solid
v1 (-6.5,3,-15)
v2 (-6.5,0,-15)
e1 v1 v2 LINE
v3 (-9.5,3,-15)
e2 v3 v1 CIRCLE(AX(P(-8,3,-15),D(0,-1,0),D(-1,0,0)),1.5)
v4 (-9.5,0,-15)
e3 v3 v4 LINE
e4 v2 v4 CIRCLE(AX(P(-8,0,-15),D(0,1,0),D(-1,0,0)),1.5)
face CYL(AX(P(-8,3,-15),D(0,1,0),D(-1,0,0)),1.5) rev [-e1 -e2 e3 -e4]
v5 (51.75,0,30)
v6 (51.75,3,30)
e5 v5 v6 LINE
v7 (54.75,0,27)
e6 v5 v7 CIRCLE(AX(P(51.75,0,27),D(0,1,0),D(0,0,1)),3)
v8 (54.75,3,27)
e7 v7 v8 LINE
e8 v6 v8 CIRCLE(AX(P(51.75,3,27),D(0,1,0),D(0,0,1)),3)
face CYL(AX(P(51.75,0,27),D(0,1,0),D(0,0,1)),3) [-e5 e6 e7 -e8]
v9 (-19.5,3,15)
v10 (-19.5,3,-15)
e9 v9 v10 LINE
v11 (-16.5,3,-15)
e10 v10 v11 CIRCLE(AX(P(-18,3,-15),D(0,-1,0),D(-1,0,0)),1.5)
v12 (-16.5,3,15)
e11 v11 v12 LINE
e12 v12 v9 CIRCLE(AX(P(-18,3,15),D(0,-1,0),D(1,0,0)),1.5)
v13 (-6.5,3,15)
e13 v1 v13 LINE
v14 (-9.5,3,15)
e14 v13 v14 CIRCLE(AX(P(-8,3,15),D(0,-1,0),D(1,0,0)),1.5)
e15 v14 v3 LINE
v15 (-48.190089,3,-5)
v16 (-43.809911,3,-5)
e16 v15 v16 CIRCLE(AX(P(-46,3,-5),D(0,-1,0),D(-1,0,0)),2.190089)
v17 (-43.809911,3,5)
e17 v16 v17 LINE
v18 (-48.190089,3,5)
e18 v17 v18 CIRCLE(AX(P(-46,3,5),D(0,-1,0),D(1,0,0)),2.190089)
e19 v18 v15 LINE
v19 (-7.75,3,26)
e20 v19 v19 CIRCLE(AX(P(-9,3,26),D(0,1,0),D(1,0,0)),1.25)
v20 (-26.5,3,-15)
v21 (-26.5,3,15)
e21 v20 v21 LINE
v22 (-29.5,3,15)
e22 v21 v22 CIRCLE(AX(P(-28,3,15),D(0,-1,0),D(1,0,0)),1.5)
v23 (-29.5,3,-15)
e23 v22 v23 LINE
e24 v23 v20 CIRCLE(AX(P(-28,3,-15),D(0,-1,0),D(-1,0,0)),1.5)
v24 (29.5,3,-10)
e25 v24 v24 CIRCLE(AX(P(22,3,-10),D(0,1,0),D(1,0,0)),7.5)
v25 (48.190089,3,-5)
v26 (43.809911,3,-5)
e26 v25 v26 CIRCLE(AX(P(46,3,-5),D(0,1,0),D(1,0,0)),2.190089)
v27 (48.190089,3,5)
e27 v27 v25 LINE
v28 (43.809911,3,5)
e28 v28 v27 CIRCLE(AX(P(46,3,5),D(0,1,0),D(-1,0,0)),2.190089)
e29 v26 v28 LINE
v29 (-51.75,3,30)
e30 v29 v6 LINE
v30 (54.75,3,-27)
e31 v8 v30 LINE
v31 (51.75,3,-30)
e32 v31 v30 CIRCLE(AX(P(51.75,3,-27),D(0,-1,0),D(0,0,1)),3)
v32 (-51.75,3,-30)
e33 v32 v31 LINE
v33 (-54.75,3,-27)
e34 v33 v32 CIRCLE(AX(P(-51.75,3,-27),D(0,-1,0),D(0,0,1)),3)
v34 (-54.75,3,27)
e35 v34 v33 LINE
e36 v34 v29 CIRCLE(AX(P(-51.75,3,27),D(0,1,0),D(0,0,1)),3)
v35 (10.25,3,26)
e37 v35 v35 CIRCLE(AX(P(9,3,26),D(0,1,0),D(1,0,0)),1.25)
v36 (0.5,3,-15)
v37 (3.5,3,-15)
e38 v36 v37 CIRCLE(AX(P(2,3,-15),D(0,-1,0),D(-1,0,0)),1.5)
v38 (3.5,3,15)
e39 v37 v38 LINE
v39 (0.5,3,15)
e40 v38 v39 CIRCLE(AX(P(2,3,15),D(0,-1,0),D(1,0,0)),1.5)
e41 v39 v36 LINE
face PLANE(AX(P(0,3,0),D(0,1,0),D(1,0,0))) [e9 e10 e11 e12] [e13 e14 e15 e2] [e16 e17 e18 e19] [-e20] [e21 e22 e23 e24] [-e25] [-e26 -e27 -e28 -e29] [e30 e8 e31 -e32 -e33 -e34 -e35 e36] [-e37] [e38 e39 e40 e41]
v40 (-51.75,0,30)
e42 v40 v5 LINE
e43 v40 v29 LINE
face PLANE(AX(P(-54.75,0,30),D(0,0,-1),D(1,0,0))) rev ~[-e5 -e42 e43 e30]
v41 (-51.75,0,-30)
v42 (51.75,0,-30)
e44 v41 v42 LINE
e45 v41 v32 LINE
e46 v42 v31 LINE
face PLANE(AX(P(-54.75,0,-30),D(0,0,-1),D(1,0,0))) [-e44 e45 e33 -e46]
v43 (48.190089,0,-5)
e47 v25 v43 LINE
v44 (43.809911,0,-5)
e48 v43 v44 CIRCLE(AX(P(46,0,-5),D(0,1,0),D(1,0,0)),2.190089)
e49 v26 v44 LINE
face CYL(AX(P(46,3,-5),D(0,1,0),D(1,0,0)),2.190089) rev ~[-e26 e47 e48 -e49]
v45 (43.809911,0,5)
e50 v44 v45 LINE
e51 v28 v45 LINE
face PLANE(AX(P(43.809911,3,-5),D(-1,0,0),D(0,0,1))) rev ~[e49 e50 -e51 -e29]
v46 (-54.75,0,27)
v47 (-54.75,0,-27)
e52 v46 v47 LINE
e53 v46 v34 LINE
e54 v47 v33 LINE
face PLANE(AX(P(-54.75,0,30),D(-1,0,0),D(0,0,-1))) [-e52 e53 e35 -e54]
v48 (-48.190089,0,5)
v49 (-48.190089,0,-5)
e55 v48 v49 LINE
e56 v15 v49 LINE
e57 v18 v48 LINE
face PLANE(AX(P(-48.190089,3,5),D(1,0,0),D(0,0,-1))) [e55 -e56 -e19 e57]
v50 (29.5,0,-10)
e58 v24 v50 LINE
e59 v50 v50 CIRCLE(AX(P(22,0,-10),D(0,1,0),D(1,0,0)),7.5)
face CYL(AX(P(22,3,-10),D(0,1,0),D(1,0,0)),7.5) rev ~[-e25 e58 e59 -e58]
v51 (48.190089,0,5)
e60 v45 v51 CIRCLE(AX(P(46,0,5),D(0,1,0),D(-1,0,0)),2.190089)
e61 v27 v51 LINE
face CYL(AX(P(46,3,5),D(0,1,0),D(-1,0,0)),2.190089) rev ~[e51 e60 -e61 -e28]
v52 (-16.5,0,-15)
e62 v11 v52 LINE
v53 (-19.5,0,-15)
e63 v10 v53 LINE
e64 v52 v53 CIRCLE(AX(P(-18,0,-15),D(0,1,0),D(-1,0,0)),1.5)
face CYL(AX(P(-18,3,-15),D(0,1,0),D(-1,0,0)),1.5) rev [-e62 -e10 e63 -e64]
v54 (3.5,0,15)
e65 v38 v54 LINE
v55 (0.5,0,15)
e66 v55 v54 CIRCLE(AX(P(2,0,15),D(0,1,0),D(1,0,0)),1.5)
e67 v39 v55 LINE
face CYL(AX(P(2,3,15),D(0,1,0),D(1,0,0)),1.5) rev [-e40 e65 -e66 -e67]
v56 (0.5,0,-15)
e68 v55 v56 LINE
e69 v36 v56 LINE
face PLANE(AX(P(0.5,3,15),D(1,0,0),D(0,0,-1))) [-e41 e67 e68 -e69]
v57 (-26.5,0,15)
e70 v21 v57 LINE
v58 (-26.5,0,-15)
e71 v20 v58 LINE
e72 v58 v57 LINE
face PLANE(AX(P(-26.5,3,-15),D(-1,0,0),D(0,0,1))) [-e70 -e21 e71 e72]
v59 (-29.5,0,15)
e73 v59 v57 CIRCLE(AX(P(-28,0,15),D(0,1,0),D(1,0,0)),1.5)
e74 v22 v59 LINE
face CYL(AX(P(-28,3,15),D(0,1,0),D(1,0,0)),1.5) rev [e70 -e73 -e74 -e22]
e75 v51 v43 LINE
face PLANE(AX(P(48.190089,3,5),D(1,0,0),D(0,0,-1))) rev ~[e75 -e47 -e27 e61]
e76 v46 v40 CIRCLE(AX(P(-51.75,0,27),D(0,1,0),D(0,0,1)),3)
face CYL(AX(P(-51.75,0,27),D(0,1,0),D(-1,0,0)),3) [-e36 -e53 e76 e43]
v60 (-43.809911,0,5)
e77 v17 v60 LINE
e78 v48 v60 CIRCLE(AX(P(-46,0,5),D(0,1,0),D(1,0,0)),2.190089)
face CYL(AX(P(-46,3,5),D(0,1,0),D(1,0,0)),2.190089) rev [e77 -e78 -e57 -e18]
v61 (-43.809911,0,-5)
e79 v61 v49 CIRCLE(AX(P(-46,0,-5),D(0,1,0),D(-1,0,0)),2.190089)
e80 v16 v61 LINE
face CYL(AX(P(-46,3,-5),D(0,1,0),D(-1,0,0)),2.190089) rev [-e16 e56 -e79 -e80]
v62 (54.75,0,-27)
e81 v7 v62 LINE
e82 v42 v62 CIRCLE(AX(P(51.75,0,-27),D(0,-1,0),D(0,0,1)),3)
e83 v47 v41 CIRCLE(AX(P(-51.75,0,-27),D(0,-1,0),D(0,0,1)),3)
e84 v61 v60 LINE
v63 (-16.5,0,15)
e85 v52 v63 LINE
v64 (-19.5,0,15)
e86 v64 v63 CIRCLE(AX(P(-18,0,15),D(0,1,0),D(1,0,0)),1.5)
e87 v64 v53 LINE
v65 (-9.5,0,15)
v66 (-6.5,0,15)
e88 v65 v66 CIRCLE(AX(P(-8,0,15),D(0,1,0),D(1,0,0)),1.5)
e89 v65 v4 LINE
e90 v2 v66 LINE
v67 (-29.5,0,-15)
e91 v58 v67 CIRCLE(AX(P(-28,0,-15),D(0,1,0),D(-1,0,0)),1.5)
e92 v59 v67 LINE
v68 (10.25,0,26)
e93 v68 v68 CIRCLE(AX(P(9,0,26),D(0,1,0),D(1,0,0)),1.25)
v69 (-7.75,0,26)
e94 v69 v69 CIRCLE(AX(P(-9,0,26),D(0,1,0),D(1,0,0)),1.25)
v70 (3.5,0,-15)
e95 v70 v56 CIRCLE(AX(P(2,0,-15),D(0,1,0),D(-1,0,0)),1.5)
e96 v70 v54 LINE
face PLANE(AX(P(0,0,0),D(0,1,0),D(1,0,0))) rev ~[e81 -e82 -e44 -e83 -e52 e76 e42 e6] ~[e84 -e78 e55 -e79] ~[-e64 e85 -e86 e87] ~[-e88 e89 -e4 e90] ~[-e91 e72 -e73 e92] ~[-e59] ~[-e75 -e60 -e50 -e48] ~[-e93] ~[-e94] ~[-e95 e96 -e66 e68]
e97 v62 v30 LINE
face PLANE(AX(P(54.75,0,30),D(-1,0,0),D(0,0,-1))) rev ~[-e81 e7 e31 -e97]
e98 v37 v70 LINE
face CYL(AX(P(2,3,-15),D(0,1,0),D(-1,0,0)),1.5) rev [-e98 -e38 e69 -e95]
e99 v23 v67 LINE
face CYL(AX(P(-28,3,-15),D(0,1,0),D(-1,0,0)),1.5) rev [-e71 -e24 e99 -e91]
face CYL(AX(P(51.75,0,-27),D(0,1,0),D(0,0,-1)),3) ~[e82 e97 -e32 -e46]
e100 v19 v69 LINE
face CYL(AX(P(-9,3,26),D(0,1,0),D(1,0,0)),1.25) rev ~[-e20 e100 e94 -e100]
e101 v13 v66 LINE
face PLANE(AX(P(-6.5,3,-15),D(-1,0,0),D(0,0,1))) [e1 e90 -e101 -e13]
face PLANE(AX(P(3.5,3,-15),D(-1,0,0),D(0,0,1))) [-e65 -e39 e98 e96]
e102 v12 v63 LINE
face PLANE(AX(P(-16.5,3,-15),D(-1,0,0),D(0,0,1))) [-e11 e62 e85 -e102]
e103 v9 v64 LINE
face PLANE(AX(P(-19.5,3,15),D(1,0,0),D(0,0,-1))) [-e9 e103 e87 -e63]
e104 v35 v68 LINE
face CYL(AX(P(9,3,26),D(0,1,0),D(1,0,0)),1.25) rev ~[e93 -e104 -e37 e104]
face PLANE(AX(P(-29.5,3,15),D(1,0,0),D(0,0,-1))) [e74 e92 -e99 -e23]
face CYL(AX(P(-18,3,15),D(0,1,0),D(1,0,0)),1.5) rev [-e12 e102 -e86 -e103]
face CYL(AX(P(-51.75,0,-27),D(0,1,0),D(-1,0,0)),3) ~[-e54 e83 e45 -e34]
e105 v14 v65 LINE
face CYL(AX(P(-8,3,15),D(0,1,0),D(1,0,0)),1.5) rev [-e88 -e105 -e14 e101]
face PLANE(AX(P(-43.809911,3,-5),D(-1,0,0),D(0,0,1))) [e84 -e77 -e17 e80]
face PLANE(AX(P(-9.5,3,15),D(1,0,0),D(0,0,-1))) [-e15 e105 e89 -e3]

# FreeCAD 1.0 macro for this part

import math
import FreeCAD as App
import Part
import Sketcher
from FreeCAD import Vector
Q = App.Units.Quantity


def edges_at(feature, points):
    """Names of the edges that pass closest to the given points."""
    edges = feature.Shape.Edges
    near = lambda p: min(range(len(edges)), key=lambda i: edges[i].distToShape(Part.Vertex(*p))[0])
    return sorted({f"Edge{near(p) + 1}" for p in points})

doc = App.newDocument("Part")
body = doc.addObject("PartDesign::Body", "Body")

sketch1 = doc.addObject("Sketcher::SketchObject", "Sketch")
body.addObject(sketch1)
sketch1.AttachmentSupport = (doc.XZ_Plane, [""])
sketch1.MapMode = "FlatFace"
sketch1.addGeometry(Part.LineSegment(Vector(-55, -30, 0), Vector(-55, 30, 0)), False)
sketch1.addGeometry(Part.LineSegment(Vector(-55, 30, 0), Vector(55, 30, 0)), False)
sketch1.addGeometry(Part.LineSegment(Vector(55, 30, 0), Vector(55, -30, 0)), False)
sketch1.addGeometry(Part.LineSegment(Vector(55, -30, 0), Vector(-55, -30, 0)), False)
sketch1.addConstraint(Sketcher.Constraint("Coincident", 0, 2, 1, 1))
sketch1.addConstraint(Sketcher.Constraint("Coincident", 1, 2, 2, 1))
sketch1.addConstraint(Sketcher.Constraint("Coincident", 2, 2, 3, 1))
sketch1.addConstraint(Sketcher.Constraint("Coincident", 3, 2, 0, 1))
sketch1.addConstraint(Sketcher.Constraint("Vertical", 0))
sketch1.addConstraint(Sketcher.Constraint("Horizontal", 1))
sketch1.addConstraint(Sketcher.Constraint("Vertical", 2))
sketch1.addConstraint(Sketcher.Constraint("Horizontal", 3))
sketch1.addConstraint(Sketcher.Constraint("Symmetric", 0, 2, 2, 2, -1, 1))
sketch1.addConstraint(Sketcher.Constraint("DistanceY", 0, 1, 0, 2, Q("60 mm")))
sketch1.addConstraint(Sketcher.Constraint("DistanceX", 1, 1, 1, 2, Q("109.5 mm")))
pad1 = doc.addObject("PartDesign::Pad", "Pad")
body.addObject(pad1)
pad1.Profile = sketch1
pad1.Length = 3
pad1.Reversed = True

sketch2 = doc.addObject("Sketcher::SketchObject", "Sketch001")
body.addObject(sketch2)
sketch2.AttachmentSupport = (doc.XZ_Plane, [""])
sketch2.MapMode = "FlatFace"
sketch2.AttachmentOffset = App.Placement(Vector(0, 0, -3), App.Rotation())
sketch2.addGeometry(Part.Circle(Vector(9, 26, 0), Vector(0, 0, 1), 1.2), False)
sketch2.addGeometry(Part.Circle(Vector(-9, 26, 0), Vector(0, 0, 1), 1.2), False)
sketch2.addConstraint(Sketcher.Constraint("Equal", 0, 1))
sketch2.addConstraint(Sketcher.Constraint("Symmetric", 0, 3, 1, 3, -2))
sketch2.addConstraint(Sketcher.Constraint("Diameter", 0, Q("2.5 mm")))
sketch2.addConstraint(Sketcher.Constraint("DistanceX", -1, 1, 0, 3, Q("9 mm")))
sketch2.addConstraint(Sketcher.Constraint("DistanceY", -1, 1, 0, 3, Q("26 mm")))
pocket1 = doc.addObject("PartDesign::Pocket", "Pocket")
body.addObject(pocket1)
pocket1.Profile = sketch2
pocket1.Length = 10
pocket1.Reversed = True
doc.recompute()

fillet = doc.addObject("PartDesign::Fillet", "Fillet")
body.addObject(fillet)
fillet.Base = (pocket1, edges_at(pocket1, [
    (54.75, 1.5, 30),
    (-54.75, 1.5, 30),
    (-54.75, 1.5, -30),
    (54.75, 1.5, -30),
]))
fillet.Radius = 3

sketch3 = doc.addObject("Sketcher::SketchObject", "Sketch002")
body.addObject(sketch3)
sketch3.AttachmentSupport = (doc.XZ_Plane, [""])
sketch3.MapMode = "FlatFace"
sketch3.AttachmentOffset = App.Placement(Vector(0, 0, -3), App.Rotation())
sketch3.addGeometry(Part.LineSegment(Vector(-43.8, 5, 0), Vector(-43.8, -5, 0)), False)
sketch3.addGeometry(Part.ArcOfCircle(Part.Circle(Vector(-46, -5, 0), Vector(0, 0, 1), 2.2), math.radians(180), math.radians(360)), False)
sketch3.addGeometry(Part.LineSegment(Vector(-48.2, -5, 0), Vector(-48.2, 5, 0)), False)
sketch3.addGeometry(Part.ArcOfCircle(Part.Circle(Vector(-46, 5, 0), Vector(0, 0, 1), 2.2), math.radians(0), math.radians(180)), False)
sketch3.addGeometry(Part.LineSegment(Vector(43.8, -5, 0), Vector(43.8, 5, 0)), False)
sketch3.addGeometry(Part.ArcOfCircle(Part.Circle(Vector(46, 5, 0), Vector(0, 0, 1), 2.2), math.radians(0), math.radians(180)), False)
sketch3.addGeometry(Part.LineSegment(Vector(48.2, 5, 0), Vector(48.2, -5, 0)), False)
sketch3.addGeometry(Part.ArcOfCircle(Part.Circle(Vector(46, -5, 0), Vector(0, 0, 1), 2.2), math.radians(180), math.radians(360)), False)
sketch3.addConstraint(Sketcher.Constraint("Tangent", 0, 2, 1, 2))
sketch3.addConstraint(Sketcher.Constraint("Tangent", 1, 1, 2, 1))
sketch3.addConstraint(Sketcher.Constraint("Tangent", 2, 2, 3, 2))
sketch3.addConstraint(Sketcher.Constraint("Tangent", 3, 1, 0, 1))
sketch3.addConstraint(Sketcher.Constraint("Tangent", 4, 2, 5, 2))
sketch3.addConstraint(Sketcher.Constraint("Tangent", 5, 1, 6, 1))
sketch3.addConstraint(Sketcher.Constraint("Tangent", 6, 2, 7, 2))
sketch3.addConstraint(Sketcher.Constraint("Tangent", 7, 1, 4, 1))
sketch3.addConstraint(Sketcher.Constraint("Vertical", 0))
sketch3.addConstraint(Sketcher.Constraint("Vertical", 2))
sketch3.addConstraint(Sketcher.Constraint("Vertical", 4))
sketch3.addConstraint(Sketcher.Constraint("Vertical", 6))
sketch3.addConstraint(Sketcher.Constraint("Equal", 3, 5))
sketch3.addConstraint(Sketcher.Constraint("Symmetric", 1, 3, 5, 3, -1, 1))
sketch3.addConstraint(Sketcher.Constraint("Horizontal", 3, 3, 5, 3))
sketch3.addConstraint(Sketcher.Constraint("Horizontal", 1, 3, 7, 3))
sketch3.addConstraint(Sketcher.Constraint("DistanceY", 0, 2, 0, 1, Q("10 mm")))
sketch3.addConstraint(Sketcher.Constraint("DistanceX", 1, 3, -1, 1, Q("46 mm")))
sketch3.addConstraint(Sketcher.Constraint("Radius", 1, Q("2.190089 mm")))
pocket2 = doc.addObject("PartDesign::Pocket", "Pocket001")
body.addObject(pocket2)
pocket2.Profile = sketch3
pocket2.Length = 10
pocket2.Reversed = True

sketch4 = doc.addObject("Sketcher::SketchObject", "Sketch003")
body.addObject(sketch4)
sketch4.AttachmentSupport = (doc.XZ_Plane, [""])
sketch4.MapMode = "FlatFace"
sketch4.AttachmentOffset = App.Placement(Vector(0, 0, -3), App.Rotation())
sketch4.addGeometry(Part.Circle(Vector(22, -10, 0), Vector(0, 0, 1), 7.5), False)
sketch4.addGeometry(Part.LineSegment(Vector(-26.5, 15, 0), Vector(-26.5, -15, 0)), False)
sketch4.addGeometry(Part.ArcOfCircle(Part.Circle(Vector(-28, -15, 0), Vector(0, 0, 1), 1.5), math.radians(180), math.radians(360)), False)
sketch4.addGeometry(Part.LineSegment(Vector(-29.5, -15, 0), Vector(-29.5, 15, 0)), False)
sketch4.addGeometry(Part.ArcOfCircle(Part.Circle(Vector(-28, 15, 0), Vector(0, 0, 1), 1.5), math.radians(0), math.radians(180)), False)
sketch4.addGeometry(Part.LineSegment(Vector(-16.5, 15, 0), Vector(-16.5, -15, 0)), False)
sketch4.addGeometry(Part.ArcOfCircle(Part.Circle(Vector(-18, -15, 0), Vector(0, 0, 1), 1.5), math.radians(180), math.radians(360)), False)
sketch4.addGeometry(Part.LineSegment(Vector(-19.5, -15, 0), Vector(-19.5, 15, 0)), False)
sketch4.addGeometry(Part.ArcOfCircle(Part.Circle(Vector(-18, 15, 0), Vector(0, 0, 1), 1.5), math.radians(0), math.radians(180)), False)
sketch4.addGeometry(Part.LineSegment(Vector(-6.5, 15, 0), Vector(-6.5, -15, 0)), False)
sketch4.addGeometry(Part.ArcOfCircle(Part.Circle(Vector(-8, -15, 0), Vector(0, 0, 1), 1.5), math.radians(180), math.radians(360)), False)
sketch4.addGeometry(Part.LineSegment(Vector(-9.5, -15, 0), Vector(-9.5, 15, 0)), False)
sketch4.addGeometry(Part.ArcOfCircle(Part.Circle(Vector(-8, 15, 0), Vector(0, 0, 1), 1.5), math.radians(0), math.radians(180)), False)
sketch4.addGeometry(Part.LineSegment(Vector(3.5, 15, 0), Vector(3.5, -15, 0)), False)
sketch4.addGeometry(Part.ArcOfCircle(Part.Circle(Vector(2, -15, 0), Vector(0, 0, 1), 1.5), math.radians(180), math.radians(360)), False)
sketch4.addGeometry(Part.LineSegment(Vector(0.5, -15, 0), Vector(0.5, 15, 0)), False)
sketch4.addGeometry(Part.ArcOfCircle(Part.Circle(Vector(2, 15, 0), Vector(0, 0, 1), 1.5), math.radians(0), math.radians(180)), False)
sketch4.addConstraint(Sketcher.Constraint("Tangent", 1, 2, 2, 2))
sketch4.addConstraint(Sketcher.Constraint("Tangent", 2, 1, 3, 1))
sketch4.addConstraint(Sketcher.Constraint("Tangent", 3, 2, 4, 2))
sketch4.addConstraint(Sketcher.Constraint("Tangent", 4, 1, 1, 1))
sketch4.addConstraint(Sketcher.Constraint("Tangent", 5, 2, 6, 2))
sketch4.addConstraint(Sketcher.Constraint("Tangent", 6, 1, 7, 1))
sketch4.addConstraint(Sketcher.Constraint("Tangent", 7, 2, 8, 2))
sketch4.addConstraint(Sketcher.Constraint("Tangent", 8, 1, 5, 1))
sketch4.addConstraint(Sketcher.Constraint("Tangent", 9, 2, 10, 2))
sketch4.addConstraint(Sketcher.Constraint("Tangent", 10, 1, 11, 1))
sketch4.addConstraint(Sketcher.Constraint("Tangent", 11, 2, 12, 2))
sketch4.addConstraint(Sketcher.Constraint("Tangent", 12, 1, 9, 1))
sketch4.addConstraint(Sketcher.Constraint("Tangent", 13, 2, 14, 2))
sketch4.addConstraint(Sketcher.Constraint("Tangent", 14, 1, 15, 1))
sketch4.addConstraint(Sketcher.Constraint("Tangent", 15, 2, 16, 2))
sketch4.addConstraint(Sketcher.Constraint("Tangent", 16, 1, 13, 1))
sketch4.addConstraint(Sketcher.Constraint("Vertical", 1))
sketch4.addConstraint(Sketcher.Constraint("Vertical", 3))
sketch4.addConstraint(Sketcher.Constraint("Vertical", 5))
sketch4.addConstraint(Sketcher.Constraint("Vertical", 7))
sketch4.addConstraint(Sketcher.Constraint("Vertical", 9))
sketch4.addConstraint(Sketcher.Constraint("Vertical", 11))
sketch4.addConstraint(Sketcher.Constraint("Vertical", 13))
sketch4.addConstraint(Sketcher.Constraint("Vertical", 15))
sketch4.addConstraint(Sketcher.Constraint("Equal", 4, 6))
sketch4.addConstraint(Sketcher.Constraint("Equal", 8, 10))
sketch4.addConstraint(Sketcher.Constraint("Equal", 12, 14))
sketch4.addConstraint(Sketcher.Constraint("Horizontal", 2, 3, 6, 3))
sketch4.addConstraint(Sketcher.Constraint("Horizontal", 4, 3, 8, 3))
sketch4.addConstraint(Sketcher.Constraint("Horizontal", 6, 3, 10, 3))
sketch4.addConstraint(Sketcher.Constraint("Horizontal", 8, 3, 12, 3))
sketch4.addConstraint(Sketcher.Constraint("Horizontal", 10, 3, 14, 3))
sketch4.addConstraint(Sketcher.Constraint("Horizontal", 12, 3, 16, 3))
sketch4.addConstraint(Sketcher.Constraint("Diameter", 0, Q("15 mm")))
sketch4.addConstraint(Sketcher.Constraint("Radius", 2, Q("1.5 mm")))
sketch4.addConstraint(Sketcher.Constraint("DistanceY", 1, 2, 1, 1, Q("30 mm")))
sketch4.addConstraint(Sketcher.Constraint("DistanceX", -1, 1, 0, 3, Q("22 mm")))
sketch4.addConstraint(Sketcher.Constraint("DistanceY", 0, 3, -1, 1, Q("10 mm")))
sketch4.addConstraint(Sketcher.Constraint("DistanceX", 2, 3, -1, 1, Q("28 mm")))
sketch4.addConstraint(Sketcher.Constraint("DistanceY", 2, 3, -1, 1, Q("15 mm")))
sketch4.addConstraint(Sketcher.Constraint("DistanceX", 6, 3, -1, 1, Q("18 mm")))
sketch4.addConstraint(Sketcher.Constraint("DistanceX", 10, 3, -1, 1, Q("8 mm")))
sketch4.addConstraint(Sketcher.Constraint("DistanceX", -1, 1, 14, 3, Q("2 mm")))
pocket3 = doc.addObject("PartDesign::Pocket", "Pocket002")
body.addObject(pocket3)
pocket3.Profile = sketch4
pocket3.Length = 10
pocket3.Reversed = True

doc.recompute()
